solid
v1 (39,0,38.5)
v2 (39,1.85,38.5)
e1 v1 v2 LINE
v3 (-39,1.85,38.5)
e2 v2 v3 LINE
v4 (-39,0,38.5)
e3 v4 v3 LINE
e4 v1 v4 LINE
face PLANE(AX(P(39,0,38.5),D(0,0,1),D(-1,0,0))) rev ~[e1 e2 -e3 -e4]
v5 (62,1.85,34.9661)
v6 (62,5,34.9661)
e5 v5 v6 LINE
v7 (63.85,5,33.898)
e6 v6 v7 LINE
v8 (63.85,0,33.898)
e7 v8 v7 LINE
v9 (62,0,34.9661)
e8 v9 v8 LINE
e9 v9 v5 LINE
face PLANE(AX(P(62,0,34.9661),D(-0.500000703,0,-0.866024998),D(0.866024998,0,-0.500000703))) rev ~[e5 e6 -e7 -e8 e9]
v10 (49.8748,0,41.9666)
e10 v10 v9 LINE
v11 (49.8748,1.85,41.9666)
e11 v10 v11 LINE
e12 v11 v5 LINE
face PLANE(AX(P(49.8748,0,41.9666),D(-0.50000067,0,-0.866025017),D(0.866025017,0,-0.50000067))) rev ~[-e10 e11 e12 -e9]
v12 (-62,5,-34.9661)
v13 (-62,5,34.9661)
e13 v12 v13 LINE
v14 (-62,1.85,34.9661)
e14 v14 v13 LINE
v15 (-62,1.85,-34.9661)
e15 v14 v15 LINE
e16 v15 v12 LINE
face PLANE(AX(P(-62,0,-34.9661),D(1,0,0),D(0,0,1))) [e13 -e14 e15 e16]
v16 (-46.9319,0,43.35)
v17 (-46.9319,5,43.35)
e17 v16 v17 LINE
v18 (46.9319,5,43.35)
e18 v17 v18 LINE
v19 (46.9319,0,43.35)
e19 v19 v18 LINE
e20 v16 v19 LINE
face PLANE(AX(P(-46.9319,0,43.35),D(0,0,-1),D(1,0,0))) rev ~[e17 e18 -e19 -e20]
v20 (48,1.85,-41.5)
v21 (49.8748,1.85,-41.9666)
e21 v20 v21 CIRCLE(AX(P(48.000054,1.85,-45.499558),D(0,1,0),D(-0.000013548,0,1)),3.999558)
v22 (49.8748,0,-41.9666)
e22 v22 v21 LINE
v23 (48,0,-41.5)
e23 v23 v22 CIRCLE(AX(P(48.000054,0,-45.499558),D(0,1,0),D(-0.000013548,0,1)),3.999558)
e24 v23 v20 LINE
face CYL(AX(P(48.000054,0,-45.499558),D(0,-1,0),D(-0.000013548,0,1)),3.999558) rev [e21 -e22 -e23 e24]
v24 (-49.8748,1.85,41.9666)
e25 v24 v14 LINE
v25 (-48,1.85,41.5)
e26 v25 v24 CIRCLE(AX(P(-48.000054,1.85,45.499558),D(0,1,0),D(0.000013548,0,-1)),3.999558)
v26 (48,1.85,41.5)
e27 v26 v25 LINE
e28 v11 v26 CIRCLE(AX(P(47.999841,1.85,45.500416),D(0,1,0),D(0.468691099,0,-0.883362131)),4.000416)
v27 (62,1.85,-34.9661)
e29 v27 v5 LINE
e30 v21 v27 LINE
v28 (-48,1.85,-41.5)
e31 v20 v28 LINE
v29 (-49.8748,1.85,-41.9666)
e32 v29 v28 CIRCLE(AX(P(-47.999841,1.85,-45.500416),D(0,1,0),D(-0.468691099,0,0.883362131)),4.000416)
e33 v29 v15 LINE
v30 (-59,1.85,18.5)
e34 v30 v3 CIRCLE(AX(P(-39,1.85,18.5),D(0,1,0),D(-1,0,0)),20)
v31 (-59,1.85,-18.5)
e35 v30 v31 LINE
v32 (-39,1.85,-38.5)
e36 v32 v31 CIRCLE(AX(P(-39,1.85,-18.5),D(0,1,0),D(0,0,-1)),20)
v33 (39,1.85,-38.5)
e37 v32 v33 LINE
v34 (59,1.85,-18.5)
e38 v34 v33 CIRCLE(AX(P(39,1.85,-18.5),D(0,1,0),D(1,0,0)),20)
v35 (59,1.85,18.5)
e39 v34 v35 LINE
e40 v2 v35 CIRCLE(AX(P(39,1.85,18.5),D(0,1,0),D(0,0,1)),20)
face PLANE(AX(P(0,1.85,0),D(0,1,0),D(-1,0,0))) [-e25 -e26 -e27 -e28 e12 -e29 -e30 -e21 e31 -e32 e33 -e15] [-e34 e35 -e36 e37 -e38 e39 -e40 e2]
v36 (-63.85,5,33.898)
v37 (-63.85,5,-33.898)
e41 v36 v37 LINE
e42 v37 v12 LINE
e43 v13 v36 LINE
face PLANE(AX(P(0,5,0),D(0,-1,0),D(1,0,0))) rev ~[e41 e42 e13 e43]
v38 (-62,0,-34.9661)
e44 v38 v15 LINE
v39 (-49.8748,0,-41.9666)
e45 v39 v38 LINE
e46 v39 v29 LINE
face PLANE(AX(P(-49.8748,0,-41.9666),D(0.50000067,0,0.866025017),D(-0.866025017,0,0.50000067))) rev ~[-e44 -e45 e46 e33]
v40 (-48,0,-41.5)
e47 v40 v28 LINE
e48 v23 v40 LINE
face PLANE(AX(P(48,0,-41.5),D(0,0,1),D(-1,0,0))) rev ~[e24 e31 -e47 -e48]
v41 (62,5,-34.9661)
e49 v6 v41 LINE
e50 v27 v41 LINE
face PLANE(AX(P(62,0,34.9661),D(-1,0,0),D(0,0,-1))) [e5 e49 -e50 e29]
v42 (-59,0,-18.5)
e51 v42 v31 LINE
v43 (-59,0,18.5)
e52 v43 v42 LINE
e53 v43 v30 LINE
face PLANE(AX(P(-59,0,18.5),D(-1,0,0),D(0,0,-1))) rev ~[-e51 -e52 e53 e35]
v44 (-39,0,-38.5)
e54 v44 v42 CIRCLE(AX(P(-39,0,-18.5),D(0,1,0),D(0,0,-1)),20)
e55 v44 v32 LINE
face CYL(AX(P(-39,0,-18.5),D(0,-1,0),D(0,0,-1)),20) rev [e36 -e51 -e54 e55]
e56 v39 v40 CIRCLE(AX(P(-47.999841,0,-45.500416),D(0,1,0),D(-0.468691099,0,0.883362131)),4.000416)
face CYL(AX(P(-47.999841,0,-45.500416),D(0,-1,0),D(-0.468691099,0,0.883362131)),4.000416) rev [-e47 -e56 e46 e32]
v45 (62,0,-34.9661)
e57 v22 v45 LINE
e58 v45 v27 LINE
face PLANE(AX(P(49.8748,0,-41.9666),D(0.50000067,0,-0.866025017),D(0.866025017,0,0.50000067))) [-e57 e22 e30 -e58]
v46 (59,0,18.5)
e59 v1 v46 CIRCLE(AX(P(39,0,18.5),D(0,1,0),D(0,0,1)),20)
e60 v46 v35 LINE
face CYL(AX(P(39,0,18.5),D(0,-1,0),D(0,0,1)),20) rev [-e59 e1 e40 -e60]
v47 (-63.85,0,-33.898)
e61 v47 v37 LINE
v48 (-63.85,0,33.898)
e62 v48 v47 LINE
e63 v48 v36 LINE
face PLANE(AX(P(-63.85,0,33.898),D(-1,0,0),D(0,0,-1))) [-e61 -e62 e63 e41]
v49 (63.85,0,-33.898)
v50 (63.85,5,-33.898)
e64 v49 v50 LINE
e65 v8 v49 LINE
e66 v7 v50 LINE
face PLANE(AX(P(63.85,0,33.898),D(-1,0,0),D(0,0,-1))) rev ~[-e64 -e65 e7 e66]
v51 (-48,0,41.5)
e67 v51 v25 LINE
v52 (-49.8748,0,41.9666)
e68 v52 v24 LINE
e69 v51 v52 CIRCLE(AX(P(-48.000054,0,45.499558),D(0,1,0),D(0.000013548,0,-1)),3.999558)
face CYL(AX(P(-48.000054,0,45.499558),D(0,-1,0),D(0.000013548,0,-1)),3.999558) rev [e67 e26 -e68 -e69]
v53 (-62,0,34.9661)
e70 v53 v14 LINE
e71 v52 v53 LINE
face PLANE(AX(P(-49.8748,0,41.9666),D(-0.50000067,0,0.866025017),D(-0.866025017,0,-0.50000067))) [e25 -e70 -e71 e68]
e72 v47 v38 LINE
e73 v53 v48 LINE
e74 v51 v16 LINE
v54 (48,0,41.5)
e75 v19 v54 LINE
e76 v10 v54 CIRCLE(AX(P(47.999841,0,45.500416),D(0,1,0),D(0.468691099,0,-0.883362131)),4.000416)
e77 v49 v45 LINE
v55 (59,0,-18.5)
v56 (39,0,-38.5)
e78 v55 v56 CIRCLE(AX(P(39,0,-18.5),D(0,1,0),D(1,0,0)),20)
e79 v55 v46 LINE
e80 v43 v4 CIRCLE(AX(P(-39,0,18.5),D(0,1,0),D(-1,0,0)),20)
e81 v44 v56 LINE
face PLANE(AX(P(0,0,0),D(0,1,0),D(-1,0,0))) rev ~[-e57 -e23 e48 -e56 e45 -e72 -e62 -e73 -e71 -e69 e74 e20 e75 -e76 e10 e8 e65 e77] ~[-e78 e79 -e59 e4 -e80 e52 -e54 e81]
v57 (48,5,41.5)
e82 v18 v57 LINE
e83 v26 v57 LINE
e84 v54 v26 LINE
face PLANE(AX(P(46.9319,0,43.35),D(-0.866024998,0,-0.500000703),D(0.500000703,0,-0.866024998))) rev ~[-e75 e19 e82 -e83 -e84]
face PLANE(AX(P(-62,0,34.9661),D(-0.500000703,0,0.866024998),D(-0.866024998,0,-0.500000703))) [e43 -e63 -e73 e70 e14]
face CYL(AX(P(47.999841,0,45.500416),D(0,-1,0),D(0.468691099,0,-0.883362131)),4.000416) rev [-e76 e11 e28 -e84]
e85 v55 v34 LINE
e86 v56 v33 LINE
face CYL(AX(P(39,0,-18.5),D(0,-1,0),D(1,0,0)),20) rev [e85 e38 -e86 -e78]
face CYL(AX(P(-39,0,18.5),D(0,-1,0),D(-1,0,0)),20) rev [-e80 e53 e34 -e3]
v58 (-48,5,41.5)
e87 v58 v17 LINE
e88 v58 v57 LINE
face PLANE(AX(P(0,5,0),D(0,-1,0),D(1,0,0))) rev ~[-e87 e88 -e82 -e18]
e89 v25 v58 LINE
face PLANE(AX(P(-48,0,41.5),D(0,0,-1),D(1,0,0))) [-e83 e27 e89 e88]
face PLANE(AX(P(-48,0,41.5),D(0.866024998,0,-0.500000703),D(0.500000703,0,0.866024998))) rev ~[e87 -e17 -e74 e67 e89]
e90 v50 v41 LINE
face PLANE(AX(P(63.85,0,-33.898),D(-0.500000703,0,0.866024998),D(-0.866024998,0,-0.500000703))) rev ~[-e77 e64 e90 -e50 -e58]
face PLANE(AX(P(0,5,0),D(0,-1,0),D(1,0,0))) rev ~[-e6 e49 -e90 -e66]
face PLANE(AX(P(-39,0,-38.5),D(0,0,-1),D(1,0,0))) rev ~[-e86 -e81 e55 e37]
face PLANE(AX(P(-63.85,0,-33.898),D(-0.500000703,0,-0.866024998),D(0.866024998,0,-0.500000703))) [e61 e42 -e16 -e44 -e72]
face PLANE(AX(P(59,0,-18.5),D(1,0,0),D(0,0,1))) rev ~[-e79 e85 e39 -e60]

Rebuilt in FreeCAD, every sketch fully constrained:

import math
import FreeCAD as App
import Part
import Sketcher

V = App.Vector
Q = App.Units.Quantity

doc = App.newDocument("Part")
body = doc.addObject("PartDesign::Body", "Body")

# Sketch on XZ plane
sketch1 = body.newObject("Sketcher::SketchObject", "Sketch")
sketch1.AttachmentSupport = (doc.getObject("XZ_Plane"), [""])
sketch1.MapMode = "FlatFace"
sketch1.addGeometry([
    Part.LineSegment(V(-48, 41.5, 0), V(48, 41.5, 0)),  # 0
    Part.ArcOfCircle(Part.Circle(V(48, 45.5, 0), V(0, 0, 1), 4), math.radians(-90), math.radians(-62)),  # 1
    Part.LineSegment(V(49.9, 42, 0), V(62, 35, 0)),  # 2
    Part.LineSegment(V(62, 35, 0), V(62, -35, 0)),  # 3
    Part.LineSegment(V(62, -35, 0), V(49.9, -42, 0)),  # 4
    Part.ArcOfCircle(Part.Circle(V(48, -45.5, 0), V(0, 0, 1), 4), math.radians(62), math.radians(90)),  # 5
    Part.LineSegment(V(48, -41.5, 0), V(-48, -41.5, 0)),  # 6
    Part.ArcOfCircle(Part.Circle(V(-48, -45.5, 0), V(0, 0, 1), 4), math.radians(90), math.radians(118)),  # 7
    Part.LineSegment(V(-49.9, -42, 0), V(-62, -35, 0)),  # 8
    Part.LineSegment(V(-62, -35, 0), V(-62, 35, 0)),  # 9
    Part.LineSegment(V(-62, 35, 0), V(-49.9, 42, 0)),  # 10
    Part.ArcOfCircle(Part.Circle(V(-48, 45.5, 0), V(0, 0, 1), 4), math.radians(-118), math.radians(-90)),  # 11
    Part.ArcOfCircle(Part.Circle(V(39, 18.5, 0), V(0, 0, 1), 20), math.radians(0), math.radians(90)),  # 12
    Part.LineSegment(V(39, 38.5, 0), V(-39, 38.5, 0)),  # 13
    Part.ArcOfCircle(Part.Circle(V(-39, 18.5, 0), V(0, 0, 1), 20), math.radians(90), math.radians(180)),  # 14
    Part.LineSegment(V(-59, 18.5, 0), V(-59, -18.5, 0)),  # 15
    Part.ArcOfCircle(Part.Circle(V(-39, -18.5, 0), V(0, 0, 1), 20), math.radians(180), math.radians(270)),  # 16
    Part.LineSegment(V(-39, -38.5, 0), V(39, -38.5, 0)),  # 17
    Part.ArcOfCircle(Part.Circle(V(39, -18.5, 0), V(0, 0, 1), 20), math.radians(-90), math.radians(0)),  # 18
    Part.LineSegment(V(59, -18.5, 0), V(59, 18.5, 0)),  # 19
], False)
sketch1.addConstraint([
    Sketcher.Constraint("Tangent", 0, 2, 1, 1),
    Sketcher.Constraint("Coincident", 1, 2, 2, 1),
    Sketcher.Constraint("Coincident", 2, 2, 3, 1),
    Sketcher.Constraint("Coincident", 3, 2, 4, 1),
    Sketcher.Constraint("Coincident", 4, 2, 5, 1),
    Sketcher.Constraint("Tangent", 5, 2, 6, 1),
    Sketcher.Constraint("Tangent", 6, 2, 7, 1),
    Sketcher.Constraint("Coincident", 7, 2, 8, 1),
    Sketcher.Constraint("Coincident", 8, 2, 9, 1),
    Sketcher.Constraint("Coincident", 9, 2, 10, 1),
    Sketcher.Constraint("Coincident", 10, 2, 11, 1),
    Sketcher.Constraint("Tangent", 11, 2, 0, 1),
    Sketcher.Constraint("Tangent", 12, 2, 13, 1),
    Sketcher.Constraint("Tangent", 13, 2, 14, 1),
    Sketcher.Constraint("Tangent", 14, 2, 15, 1),
    Sketcher.Constraint("Tangent", 15, 2, 16, 1),
    Sketcher.Constraint("Tangent", 16, 2, 17, 1),
    Sketcher.Constraint("Tangent", 17, 2, 18, 1),
    Sketcher.Constraint("Tangent", 18, 2, 19, 1),
    Sketcher.Constraint("Tangent", 19, 2, 12, 1),
    Sketcher.Constraint("Horizontal", 0),
    Sketcher.Constraint("Vertical", 3),
    Sketcher.Constraint("Horizontal", 6),
    Sketcher.Constraint("Vertical", 9),
    Sketcher.Constraint("Horizontal", 13),
    Sketcher.Constraint("Vertical", 15),
    Sketcher.Constraint("Horizontal", 17),
    Sketcher.Constraint("Vertical", 19),
    Sketcher.Constraint("Equal", 1, 5),
    Sketcher.Constraint("Equal", 5, 7),
    Sketcher.Constraint("Equal", 7, 11),
    Sketcher.Constraint("Equal", 12, 14),
    Sketcher.Constraint("Equal", 14, 16),
    Sketcher.Constraint("Equal", 16, 18),
    Sketcher.Constraint("Symmetric", 1, 3, 7, 3, -1, 1),
    Sketcher.Constraint("Symmetric", 12, 3, 16, 3, -1, 1),
    Sketcher.Constraint("Symmetric", 2, 2, 8, 2, -1, 1),
    Sketcher.Constraint("Symmetric", 4, 2, 10, 2, -1, 1),
    Sketcher.Constraint("Symmetric", 4, 2, 7, 2, -2),
    Sketcher.Constraint("Parallel", 2, 8),
    Sketcher.Constraint("Parallel", 4, 10),
    Sketcher.Constraint("Horizontal", 3, 2, 8, 2),
    Sketcher.Constraint("Radius", 1, 4.0),
    Sketcher.Constraint("Radius", 12, 20.0),
    Sketcher.Constraint("DistanceX", 0, 1, 0, 2, 96.0),
    Sketcher.Constraint("DistanceX", 13, 2, 13, 1, 78.0),
    Sketcher.Constraint("DistanceY", 15, 2, 15, 1, 37.0),
    Sketcher.Constraint("DistanceX", -1, 1, 2, 2, 62.0),
    Sketcher.Constraint("DistanceY", 18, 3, 0, 2, 60.0),
    Sketcher.Constraint("Angle", 2, Q("-30 deg")),
    Sketcher.Constraint("Distance", 2, 14.001),
])
pad1 = body.newObject("PartDesign::Pad", "Pad")
pad1.Profile = sketch1
pad1.Length = 1.85
pad1.Reversed = True

# Sketch on XZ plane
sketch2 = body.newObject("Sketcher::SketchObject", "Sketch001")
sketch2.AttachmentSupport = (doc.getObject("XZ_Plane"), [""])
sketch2.MapMode = "FlatFace"
sketch2.addGeometry([
    Part.LineSegment(V(63.9, 33.9, 0), V(62, 35, 0)),  # 0
    Part.LineSegment(V(62, 35, 0), V(62, -35, 0)),  # 1
    Part.LineSegment(V(62, -35, 0), V(63.9, -33.9, 0)),  # 2
    Part.LineSegment(V(63.9, -33.9, 0), V(63.9, 33.9, 0)),  # 3
    Part.LineSegment(V(-46.9, 43.4, 0), V(-48, 41.5, 0)),  # 4
    Part.LineSegment(V(-48, 41.5, 0), V(48, 41.5, 0)),  # 5
    Part.LineSegment(V(48, 41.5, 0), V(46.9, 43.4, 0)),  # 6
    Part.LineSegment(V(46.9, 43.4, 0), V(-46.9, 43.4, 0)),  # 7
    Part.LineSegment(V(-63.9, -33.9, 0), V(-62, -35, 0)),  # 8
    Part.LineSegment(V(-62, -35, 0), V(-62, 35, 0)),  # 9
    Part.LineSegment(V(-62, 35, 0), V(-63.9, 33.9, 0)),  # 10
    Part.LineSegment(V(-63.9, 33.9, 0), V(-63.9, -33.9, 0)),  # 11
], False)
sketch2.addConstraint([
    Sketcher.Constraint("Coincident", 0, 2, 1, 1),
    Sketcher.Constraint("Coincident", 1, 2, 2, 1),
    Sketcher.Constraint("Coincident", 2, 2, 3, 1),
    Sketcher.Constraint("Coincident", 3, 2, 0, 1),
    Sketcher.Constraint("Coincident", 4, 2, 5, 1),
    Sketcher.Constraint("Coincident", 5, 2, 6, 1),
    Sketcher.Constraint("Coincident", 6, 2, 7, 1),
    Sketcher.Constraint("Coincident", 7, 2, 4, 1),
    Sketcher.Constraint("Coincident", 8, 2, 9, 1),
    Sketcher.Constraint("Coincident", 9, 2, 10, 1),
    Sketcher.Constraint("Coincident", 10, 2, 11, 1),
    Sketcher.Constraint("Coincident", 11, 2, 8, 1),
    Sketcher.Constraint("Vertical", 1),
    Sketcher.Constraint("Vertical", 3),
    Sketcher.Constraint("Horizontal", 5),
    Sketcher.Constraint("Horizontal", 7),
    Sketcher.Constraint("Vertical", 9),
    Sketcher.Constraint("Vertical", 11),
    Sketcher.Constraint("Symmetric", 0, 2, 8, 2, -1, 1),
    Sketcher.Constraint("Symmetric", 2, 2, 10, 2, -1, 1),
    Sketcher.Constraint("Perpendicular", 0, 4),
    Sketcher.Constraint("Perpendicular", 2, 6),
    Sketcher.Constraint("Perpendicular", 4, 8),
    Sketcher.Constraint("Perpendicular", 6, 10),
    Sketcher.Constraint("Horizontal", 1, 2, 8, 2),
    Sketcher.Constraint("Horizontal", 3, 2, 10, 2),
    Sketcher.Constraint("Equal", 2, 4),
    Sketcher.Constraint("Angle", 4, Q("-120 deg")),
    Sketcher.Constraint("DistanceX", 5, 1, 5, 2, 96.0),
    Sketcher.Constraint("DistanceX", 1, 2, 2, 2, 1.85),
    Sketcher.Constraint("DistanceX", -1, 1, 0, 2, 62.0),
    Sketcher.Constraint("DistanceX", 4, 2, -1, 1, 48.0),
    Sketcher.Constraint("DistanceY", -1, 1, 4, 2, 41.5),
    Sketcher.Constraint("DistanceY", 3, 1, 3, 2, 67.796),
])
pad2 = body.newObject("PartDesign::Pad", "Pad001")
pad2.Profile = sketch2
pad2.Length = 5
pad2.Reversed = True

doc.recompute()
